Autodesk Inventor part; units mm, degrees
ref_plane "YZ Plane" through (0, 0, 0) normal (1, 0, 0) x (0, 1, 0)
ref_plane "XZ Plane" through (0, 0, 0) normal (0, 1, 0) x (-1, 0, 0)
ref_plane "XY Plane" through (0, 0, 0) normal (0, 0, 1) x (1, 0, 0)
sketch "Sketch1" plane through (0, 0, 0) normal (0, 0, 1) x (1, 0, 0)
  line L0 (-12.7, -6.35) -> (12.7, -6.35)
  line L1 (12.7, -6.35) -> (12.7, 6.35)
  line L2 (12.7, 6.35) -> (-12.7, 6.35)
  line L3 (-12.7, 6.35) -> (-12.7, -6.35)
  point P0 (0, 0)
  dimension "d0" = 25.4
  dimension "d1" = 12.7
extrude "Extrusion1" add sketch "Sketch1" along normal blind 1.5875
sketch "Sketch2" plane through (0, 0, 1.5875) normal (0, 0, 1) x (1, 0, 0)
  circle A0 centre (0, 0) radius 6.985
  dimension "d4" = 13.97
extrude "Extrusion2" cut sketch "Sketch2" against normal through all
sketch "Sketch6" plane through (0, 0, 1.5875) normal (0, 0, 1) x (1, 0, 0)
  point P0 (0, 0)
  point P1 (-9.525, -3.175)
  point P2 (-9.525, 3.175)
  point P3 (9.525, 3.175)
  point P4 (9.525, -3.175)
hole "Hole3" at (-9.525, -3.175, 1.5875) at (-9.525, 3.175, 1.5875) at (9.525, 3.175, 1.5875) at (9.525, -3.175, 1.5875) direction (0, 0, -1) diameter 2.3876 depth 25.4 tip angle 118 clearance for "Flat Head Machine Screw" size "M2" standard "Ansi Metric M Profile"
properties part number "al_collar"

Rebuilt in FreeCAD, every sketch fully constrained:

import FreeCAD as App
import Part
import Sketcher

V = App.Vector
Q = App.Units.Quantity

doc = App.newDocument("Part")
params = doc.addObject("Spreadsheet::Sheet", "Params")
for row, (alias, value) in enumerate([
    ("sketch1_width", "1 in"),
    ("sketch1_height", "0.5 in"),
    ("pad1_length", "0.0625 in"),
    ("sketch2_diameter", "0.55 in"),
    ("sketch3_diameter", "0.094 in"),
    ("hole_diameter", "0.094 in"),
    ("hole_depth", "1 in"),
], start=1):
    params.set(f"A{row}", alias)
    params.set(f"B{row}", "=" + value)
    params.setAlias(f"B{row}", alias)

body = doc.addObject("PartDesign::Body", "Body")
body.AllowCompound = True

# Sketch on XY plane
sketch1 = doc.addObject("Sketcher::SketchObject", "Sketch")
body.addObject(sketch1)
sketch1.AttachmentSupport = (doc.XY_Plane, [""])
sketch1.MapMode = "FlatFace"
sketch1.addGeometry(Part.LineSegment(V(-13, 6, 0), V(-13, -6, 0)), False)
sketch1.addGeometry(Part.LineSegment(V(-13, -6, 0), V(13, -6, 0)), False)
sketch1.addGeometry(Part.LineSegment(V(13, -6, 0), V(13, 6, 0)), False)
sketch1.addGeometry(Part.LineSegment(V(13, 6, 0), V(-13, 6, 0)), False)
sketch1.addConstraint(Sketcher.Constraint("Coincident", 0, 2, 1, 1))
sketch1.addConstraint(Sketcher.Constraint("Coincident", 1, 2, 2, 1))
sketch1.addConstraint(Sketcher.Constraint("Coincident", 2, 2, 3, 1))
sketch1.addConstraint(Sketcher.Constraint("Coincident", 3, 2, 0, 1))
sketch1.addConstraint(Sketcher.Constraint("Vertical", 0))
sketch1.addConstraint(Sketcher.Constraint("Horizontal", 1))
sketch1.addConstraint(Sketcher.Constraint("Vertical", 2))
sketch1.addConstraint(Sketcher.Constraint("Horizontal", 3))
sketch1.addConstraint(Sketcher.Constraint("Symmetric", 0, 2, 2, 2, -1, 1))
sketch1.addConstraint(Sketcher.Constraint("DistanceX", 1, 1, 1, 2, Q("1 in")))
sketch1.addConstraint(Sketcher.Constraint("DistanceY", 0, 2, 0, 1, Q("0.5 in")))
sketch1.setExpression("Constraints[9]", "Params.sketch1_width")
sketch1.setExpression("Constraints[10]", "Params.sketch1_height")
pad1 = doc.addObject("PartDesign::Pad", "Pad")
body.addObject(pad1)
pad1.Profile = sketch1
pad1.setExpression("Length", "Params.pad1_length")

# Sketch on XY plane
sketch2 = doc.addObject("Sketcher::SketchObject", "Sketch001")
body.addObject(sketch2)
sketch2.AttachmentSupport = (doc.XY_Plane, [""])
sketch2.MapMode = "FlatFace"
sketch2.AttachmentOffset = App.Placement(V(0, 0, 0.0625 * 25.4), App.Rotation())
sketch2.addGeometry(Part.Circle(V(0, 0, 0), V(0, 0, 1), 7), False)
sketch2.addConstraint(Sketcher.Constraint("Coincident", 0, 3, -1, 1))
sketch2.addConstraint(Sketcher.Constraint("Diameter", 0, Q("0.55 in")))
sketch2.setExpression("Constraints[1]", "Params.sketch2_diameter")
pocket1 = doc.addObject("PartDesign::Pocket", "Pocket")
body.addObject(pocket1)
pocket1.Profile = sketch2
pocket1.Type = "ThroughAll"

# Sketch on XY plane
sketch3 = doc.addObject("Sketcher::SketchObject", "Sketch002")
body.addObject(sketch3)
sketch3.AttachmentSupport = (doc.XY_Plane, [""])
sketch3.MapMode = "FlatFace"
sketch3.AttachmentOffset = App.Placement(V(0, 0, 0.0625 * 25.4), App.Rotation())
sketch3.addGeometry(Part.Circle(V(-9.5, -3.2, 0), V(0, 0, 1), 1.2), False)
sketch3.addGeometry(Part.Circle(V(-9.5, 3.2, 0), V(0, 0, 1), 1.2), False)
sketch3.addGeometry(Part.Circle(V(9.5, 3.2, 0), V(0, 0, 1), 1.2), False)
sketch3.addGeometry(Part.Circle(V(9.5, -3.2, 0), V(0, 0, 1), 1.2), False)
sketch3.addConstraint(Sketcher.Constraint("Equal", 0, 1))
sketch3.addConstraint(Sketcher.Constraint("Equal", 1, 2))
sketch3.addConstraint(Sketcher.Constraint("Equal", 2, 3))
sketch3.addConstraint(Sketcher.Constraint("Symmetric", 0, 3, 2, 3, -1, 1))
sketch3.addConstraint(Sketcher.Constraint("Symmetric", 1, 3, 3, 3, -1, 1))
sketch3.addConstraint(Sketcher.Constraint("Symmetric", 1, 3, 2, 3, -2))
sketch3.addConstraint(Sketcher.Constraint("Diameter", 0, Q("0.094 in")))
sketch3.addConstraint(Sketcher.Constraint("DistanceY", 0, 3, 1, 3, Q("0.25 in")))
sketch3.addConstraint(Sketcher.Constraint("DistanceX", 1, 3, 2, 3, Q("0.75 in")))
sketch3.setExpression("Constraints[6]", "Params.sketch3_diameter")
doc.recompute()
hole = doc.addObject("PartDesign::Hole", "Hole")
body.addObject(hole)
hole.Profile = sketch3
hole.ThreadType = "None"
hole.setExpression("Diameter", "Params.hole_diameter")
hole.DepthType = "Dimension"
hole.setExpression("Depth", "Params.hole_depth")
hole.DrillPoint = "Angled"
hole.DrillPointAngle = 118

doc.recompute()
